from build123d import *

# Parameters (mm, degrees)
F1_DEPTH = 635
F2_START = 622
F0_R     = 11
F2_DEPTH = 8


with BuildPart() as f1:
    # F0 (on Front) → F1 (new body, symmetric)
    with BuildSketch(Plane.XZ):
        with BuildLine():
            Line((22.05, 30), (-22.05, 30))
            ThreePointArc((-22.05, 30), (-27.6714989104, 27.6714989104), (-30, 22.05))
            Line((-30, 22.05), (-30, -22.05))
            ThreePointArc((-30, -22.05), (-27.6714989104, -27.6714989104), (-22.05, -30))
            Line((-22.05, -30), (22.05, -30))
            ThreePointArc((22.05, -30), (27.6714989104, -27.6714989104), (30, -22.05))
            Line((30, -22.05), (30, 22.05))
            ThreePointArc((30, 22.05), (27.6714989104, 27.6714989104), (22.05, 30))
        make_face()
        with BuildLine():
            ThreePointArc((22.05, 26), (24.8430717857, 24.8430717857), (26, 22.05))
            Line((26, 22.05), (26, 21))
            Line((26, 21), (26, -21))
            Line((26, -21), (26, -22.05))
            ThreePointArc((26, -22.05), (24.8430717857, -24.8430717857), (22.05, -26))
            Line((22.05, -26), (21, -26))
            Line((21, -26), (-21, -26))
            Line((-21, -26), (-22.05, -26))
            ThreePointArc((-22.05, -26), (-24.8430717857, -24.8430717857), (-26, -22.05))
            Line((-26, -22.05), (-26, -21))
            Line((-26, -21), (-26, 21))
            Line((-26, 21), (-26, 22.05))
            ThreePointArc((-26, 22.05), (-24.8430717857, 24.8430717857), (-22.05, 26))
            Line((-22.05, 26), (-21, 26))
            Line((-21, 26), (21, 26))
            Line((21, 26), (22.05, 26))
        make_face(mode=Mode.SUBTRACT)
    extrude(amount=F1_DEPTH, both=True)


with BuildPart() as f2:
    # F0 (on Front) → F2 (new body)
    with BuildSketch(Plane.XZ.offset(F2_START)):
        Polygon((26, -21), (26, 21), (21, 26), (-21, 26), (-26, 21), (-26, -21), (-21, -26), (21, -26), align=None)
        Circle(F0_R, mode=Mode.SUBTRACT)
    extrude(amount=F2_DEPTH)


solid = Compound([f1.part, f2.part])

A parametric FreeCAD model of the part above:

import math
import FreeCAD as App
import Part
import Sketcher
from FreeCAD import Vector
Q = App.Units.Quantity

doc = App.newDocument("Part")
body = doc.addObject("PartDesign::Body", "Body")

sketch1 = body.newObject("Sketcher::SketchObject", "Sketch")
sketch1.AttachmentSupport = (doc.getObject("XZ_Plane"), [""])
sketch1.MapMode = "FlatFace"
sketch1.addGeometry([
    Part.LineSegment(Vector(22.05, 30, 0), Vector(-22.05, 30, 0)),
    Part.ArcOfCircle(Part.Circle(Vector(-22.05, 22.05, 0), Vector(0, 0, 1), 7.95), math.radians(90), math.radians(180)),
    Part.LineSegment(Vector(-30, 22.05, 0), Vector(-30, -22.05, 0)),
    Part.ArcOfCircle(Part.Circle(Vector(-22.05, -22.05, 0), Vector(0, 0, 1), 7.95), math.radians(180), math.radians(270)),
    Part.LineSegment(Vector(-22.05, -30, 0), Vector(22.05, -30, 0)),
    Part.ArcOfCircle(Part.Circle(Vector(22.05, -22.05, 0), Vector(0, 0, 1), 7.95), math.radians(-90), math.radians(0)),
    Part.LineSegment(Vector(30, -22.05, 0), Vector(30, 22.05, 0)),
    Part.ArcOfCircle(Part.Circle(Vector(22.05, 22.05, 0), Vector(0, 0, 1), 7.95), math.radians(0), math.radians(90)),
    Part.LineSegment(Vector(-22.05, 26, 0), Vector(22.05, 26, 0)),
    Part.ArcOfCircle(Part.Circle(Vector(22.05, 22.05, 0), Vector(0, 0, 1), 3.95), math.radians(0), math.radians(90)),
    Part.LineSegment(Vector(26, 22.05, 0), Vector(26, -22.05, 0)),
    Part.ArcOfCircle(Part.Circle(Vector(22.05, -22.05, 0), Vector(0, 0, 1), 3.95), math.radians(-90), math.radians(0)),
    Part.LineSegment(Vector(22.05, -26, 0), Vector(-22.05, -26, 0)),
    Part.ArcOfCircle(Part.Circle(Vector(-22.05, -22.05, 0), Vector(0, 0, 1), 3.95), math.radians(180), math.radians(270)),
    Part.LineSegment(Vector(-26, -22.05, 0), Vector(-26, 22.05, 0)),
    Part.ArcOfCircle(Part.Circle(Vector(-22.05, 22.05, 0), Vector(0, 0, 1), 3.95), math.radians(90), math.radians(180)),
], False)
sketch1.addConstraint([
    Sketcher.Constraint("Tangent", 0, 2, 1, 1),
    Sketcher.Constraint("Tangent", 1, 2, 2, 1),
    Sketcher.Constraint("Tangent", 2, 2, 3, 1),
    Sketcher.Constraint("Tangent", 3, 2, 4, 1),
    Sketcher.Constraint("Tangent", 4, 2, 5, 1),
    Sketcher.Constraint("Tangent", 5, 2, 6, 1),
    Sketcher.Constraint("Tangent", 6, 2, 7, 1),
    Sketcher.Constraint("Tangent", 7, 2, 0, 1),
    Sketcher.Constraint("Tangent", 8, 2, 9, 2),
    Sketcher.Constraint("Tangent", 9, 1, 10, 1),
    Sketcher.Constraint("Tangent", 10, 2, 11, 2),
    Sketcher.Constraint("Tangent", 11, 1, 12, 1),
    Sketcher.Constraint("Tangent", 12, 2, 13, 2),
    Sketcher.Constraint("Tangent", 13, 1, 14, 1),
    Sketcher.Constraint("Tangent", 14, 2, 15, 2),
    Sketcher.Constraint("Tangent", 15, 1, 8, 1),
    Sketcher.Constraint("Horizontal", 0),
    Sketcher.Constraint("Vertical", 2),
    Sketcher.Constraint("Horizontal", 4),
    Sketcher.Constraint("Vertical", 6),
    Sketcher.Constraint("Horizontal", 8),
    Sketcher.Constraint("Vertical", 10),
    Sketcher.Constraint("Horizontal", 12),
    Sketcher.Constraint("Vertical", 14),
    Sketcher.Constraint("Coincident", 9, 3, 7, 3),
    Sketcher.Constraint("Coincident", 11, 3, 5, 3),
    Sketcher.Constraint("Coincident", 13, 3, 3, 3),
    Sketcher.Constraint("Equal", 1, 3),
    Sketcher.Constraint("Equal", 3, 5),
    Sketcher.Constraint("Equal", 5, 7),
    Sketcher.Constraint("Equal", 13, 15),
    Sketcher.Constraint("Symmetric", 1, 3, 5, 3, -1, 1),
    Sketcher.Constraint("Equal", 12, 2),
    Sketcher.Constraint("Radius", 1, Q("7.95 mm")),
    Sketcher.Constraint("Radius", 9, Q("3.95 mm")),
    Sketcher.Constraint("DistanceX", 0, 2, 0, 1, Q("44.1 mm")),
])
pad1 = body.newObject("PartDesign::Pad", "Pad")
pad1.Profile = sketch1
pad1.Length = 1270
pad1.Midplane = True
body2 = doc.addObject("PartDesign::Body", "Body001")

sketch2 = body2.newObject("Sketcher::SketchObject", "Sketch001")
sketch2.AttachmentSupport = (doc.getObject("XZ_Plane001"), [""])
sketch2.MapMode = "FlatFace"
sketch2.AttachmentOffset = App.Placement(Vector(0, 0, 622), App.Rotation())
sketch2.addGeometry([
    Part.LineSegment(Vector(26, -21, 0), Vector(26, 21, 0)),
    Part.LineSegment(Vector(26, 21, 0), Vector(21, 26, 0)),
    Part.LineSegment(Vector(21, 26, 0), Vector(-21, 26, 0)),
    Part.LineSegment(Vector(-21, 26, 0), Vector(-26, 21, 0)),
    Part.LineSegment(Vector(-26, 21, 0), Vector(-26, -21, 0)),
    Part.LineSegment(Vector(-26, -21, 0), Vector(-21, -26, 0)),
    Part.LineSegment(Vector(-21, -26, 0), Vector(21, -26, 0)),
    Part.LineSegment(Vector(21, -26, 0), Vector(26, -21, 0)),
    Part.Circle(Vector(0, 0, 0), Vector(0, 0, 1), 11),
], False)
sketch2.addConstraint([
    Sketcher.Constraint("Coincident", 0, 2, 1, 1),
    Sketcher.Constraint("Coincident", 1, 2, 2, 1),
    Sketcher.Constraint("Coincident", 2, 2, 3, 1),
    Sketcher.Constraint("Coincident", 3, 2, 4, 1),
    Sketcher.Constraint("Coincident", 4, 2, 5, 1),
    Sketcher.Constraint("Coincident", 5, 2, 6, 1),
    Sketcher.Constraint("Coincident", 6, 2, 7, 1),
    Sketcher.Constraint("Coincident", 7, 2, 0, 1),
    Sketcher.Constraint("Vertical", 0),
    Sketcher.Constraint("Horizontal", 2),
    Sketcher.Constraint("Vertical", 4),
    Sketcher.Constraint("Horizontal", 6),
    Sketcher.Constraint("Coincident", 8, 3, -1, 1),
    Sketcher.Constraint("Symmetric", 0, 2, 4, 2, -1, 1),
    Sketcher.Constraint("Symmetric", 1, 2, 5, 2, -1, 1),
    Sketcher.Constraint("Perpendicular", 1, 3),
    Sketcher.Constraint("Perpendicular", 5, 7),
    Sketcher.Constraint("Horizontal", 0, 2, 3, 2),
    Sketcher.Constraint("Horizontal", 4, 2, 7, 2),
    Sketcher.Constraint("Vertical", 2, 2, 5, 2),
    Sketcher.Constraint("Equal", 6, 0),
    Sketcher.Constraint("Diameter", 8, Q("22 mm")),
    Sketcher.Constraint("DistanceX", 2, 2, 2, 1, Q("42 mm")),
    Sketcher.Constraint("DistanceX", -1, 1, 0, 2, Q("26 mm")),
])
pad2 = body2.newObject("PartDesign::Pad", "Pad001")
pad2.Profile = sketch2
pad2.Length = 8

doc.recompute()
